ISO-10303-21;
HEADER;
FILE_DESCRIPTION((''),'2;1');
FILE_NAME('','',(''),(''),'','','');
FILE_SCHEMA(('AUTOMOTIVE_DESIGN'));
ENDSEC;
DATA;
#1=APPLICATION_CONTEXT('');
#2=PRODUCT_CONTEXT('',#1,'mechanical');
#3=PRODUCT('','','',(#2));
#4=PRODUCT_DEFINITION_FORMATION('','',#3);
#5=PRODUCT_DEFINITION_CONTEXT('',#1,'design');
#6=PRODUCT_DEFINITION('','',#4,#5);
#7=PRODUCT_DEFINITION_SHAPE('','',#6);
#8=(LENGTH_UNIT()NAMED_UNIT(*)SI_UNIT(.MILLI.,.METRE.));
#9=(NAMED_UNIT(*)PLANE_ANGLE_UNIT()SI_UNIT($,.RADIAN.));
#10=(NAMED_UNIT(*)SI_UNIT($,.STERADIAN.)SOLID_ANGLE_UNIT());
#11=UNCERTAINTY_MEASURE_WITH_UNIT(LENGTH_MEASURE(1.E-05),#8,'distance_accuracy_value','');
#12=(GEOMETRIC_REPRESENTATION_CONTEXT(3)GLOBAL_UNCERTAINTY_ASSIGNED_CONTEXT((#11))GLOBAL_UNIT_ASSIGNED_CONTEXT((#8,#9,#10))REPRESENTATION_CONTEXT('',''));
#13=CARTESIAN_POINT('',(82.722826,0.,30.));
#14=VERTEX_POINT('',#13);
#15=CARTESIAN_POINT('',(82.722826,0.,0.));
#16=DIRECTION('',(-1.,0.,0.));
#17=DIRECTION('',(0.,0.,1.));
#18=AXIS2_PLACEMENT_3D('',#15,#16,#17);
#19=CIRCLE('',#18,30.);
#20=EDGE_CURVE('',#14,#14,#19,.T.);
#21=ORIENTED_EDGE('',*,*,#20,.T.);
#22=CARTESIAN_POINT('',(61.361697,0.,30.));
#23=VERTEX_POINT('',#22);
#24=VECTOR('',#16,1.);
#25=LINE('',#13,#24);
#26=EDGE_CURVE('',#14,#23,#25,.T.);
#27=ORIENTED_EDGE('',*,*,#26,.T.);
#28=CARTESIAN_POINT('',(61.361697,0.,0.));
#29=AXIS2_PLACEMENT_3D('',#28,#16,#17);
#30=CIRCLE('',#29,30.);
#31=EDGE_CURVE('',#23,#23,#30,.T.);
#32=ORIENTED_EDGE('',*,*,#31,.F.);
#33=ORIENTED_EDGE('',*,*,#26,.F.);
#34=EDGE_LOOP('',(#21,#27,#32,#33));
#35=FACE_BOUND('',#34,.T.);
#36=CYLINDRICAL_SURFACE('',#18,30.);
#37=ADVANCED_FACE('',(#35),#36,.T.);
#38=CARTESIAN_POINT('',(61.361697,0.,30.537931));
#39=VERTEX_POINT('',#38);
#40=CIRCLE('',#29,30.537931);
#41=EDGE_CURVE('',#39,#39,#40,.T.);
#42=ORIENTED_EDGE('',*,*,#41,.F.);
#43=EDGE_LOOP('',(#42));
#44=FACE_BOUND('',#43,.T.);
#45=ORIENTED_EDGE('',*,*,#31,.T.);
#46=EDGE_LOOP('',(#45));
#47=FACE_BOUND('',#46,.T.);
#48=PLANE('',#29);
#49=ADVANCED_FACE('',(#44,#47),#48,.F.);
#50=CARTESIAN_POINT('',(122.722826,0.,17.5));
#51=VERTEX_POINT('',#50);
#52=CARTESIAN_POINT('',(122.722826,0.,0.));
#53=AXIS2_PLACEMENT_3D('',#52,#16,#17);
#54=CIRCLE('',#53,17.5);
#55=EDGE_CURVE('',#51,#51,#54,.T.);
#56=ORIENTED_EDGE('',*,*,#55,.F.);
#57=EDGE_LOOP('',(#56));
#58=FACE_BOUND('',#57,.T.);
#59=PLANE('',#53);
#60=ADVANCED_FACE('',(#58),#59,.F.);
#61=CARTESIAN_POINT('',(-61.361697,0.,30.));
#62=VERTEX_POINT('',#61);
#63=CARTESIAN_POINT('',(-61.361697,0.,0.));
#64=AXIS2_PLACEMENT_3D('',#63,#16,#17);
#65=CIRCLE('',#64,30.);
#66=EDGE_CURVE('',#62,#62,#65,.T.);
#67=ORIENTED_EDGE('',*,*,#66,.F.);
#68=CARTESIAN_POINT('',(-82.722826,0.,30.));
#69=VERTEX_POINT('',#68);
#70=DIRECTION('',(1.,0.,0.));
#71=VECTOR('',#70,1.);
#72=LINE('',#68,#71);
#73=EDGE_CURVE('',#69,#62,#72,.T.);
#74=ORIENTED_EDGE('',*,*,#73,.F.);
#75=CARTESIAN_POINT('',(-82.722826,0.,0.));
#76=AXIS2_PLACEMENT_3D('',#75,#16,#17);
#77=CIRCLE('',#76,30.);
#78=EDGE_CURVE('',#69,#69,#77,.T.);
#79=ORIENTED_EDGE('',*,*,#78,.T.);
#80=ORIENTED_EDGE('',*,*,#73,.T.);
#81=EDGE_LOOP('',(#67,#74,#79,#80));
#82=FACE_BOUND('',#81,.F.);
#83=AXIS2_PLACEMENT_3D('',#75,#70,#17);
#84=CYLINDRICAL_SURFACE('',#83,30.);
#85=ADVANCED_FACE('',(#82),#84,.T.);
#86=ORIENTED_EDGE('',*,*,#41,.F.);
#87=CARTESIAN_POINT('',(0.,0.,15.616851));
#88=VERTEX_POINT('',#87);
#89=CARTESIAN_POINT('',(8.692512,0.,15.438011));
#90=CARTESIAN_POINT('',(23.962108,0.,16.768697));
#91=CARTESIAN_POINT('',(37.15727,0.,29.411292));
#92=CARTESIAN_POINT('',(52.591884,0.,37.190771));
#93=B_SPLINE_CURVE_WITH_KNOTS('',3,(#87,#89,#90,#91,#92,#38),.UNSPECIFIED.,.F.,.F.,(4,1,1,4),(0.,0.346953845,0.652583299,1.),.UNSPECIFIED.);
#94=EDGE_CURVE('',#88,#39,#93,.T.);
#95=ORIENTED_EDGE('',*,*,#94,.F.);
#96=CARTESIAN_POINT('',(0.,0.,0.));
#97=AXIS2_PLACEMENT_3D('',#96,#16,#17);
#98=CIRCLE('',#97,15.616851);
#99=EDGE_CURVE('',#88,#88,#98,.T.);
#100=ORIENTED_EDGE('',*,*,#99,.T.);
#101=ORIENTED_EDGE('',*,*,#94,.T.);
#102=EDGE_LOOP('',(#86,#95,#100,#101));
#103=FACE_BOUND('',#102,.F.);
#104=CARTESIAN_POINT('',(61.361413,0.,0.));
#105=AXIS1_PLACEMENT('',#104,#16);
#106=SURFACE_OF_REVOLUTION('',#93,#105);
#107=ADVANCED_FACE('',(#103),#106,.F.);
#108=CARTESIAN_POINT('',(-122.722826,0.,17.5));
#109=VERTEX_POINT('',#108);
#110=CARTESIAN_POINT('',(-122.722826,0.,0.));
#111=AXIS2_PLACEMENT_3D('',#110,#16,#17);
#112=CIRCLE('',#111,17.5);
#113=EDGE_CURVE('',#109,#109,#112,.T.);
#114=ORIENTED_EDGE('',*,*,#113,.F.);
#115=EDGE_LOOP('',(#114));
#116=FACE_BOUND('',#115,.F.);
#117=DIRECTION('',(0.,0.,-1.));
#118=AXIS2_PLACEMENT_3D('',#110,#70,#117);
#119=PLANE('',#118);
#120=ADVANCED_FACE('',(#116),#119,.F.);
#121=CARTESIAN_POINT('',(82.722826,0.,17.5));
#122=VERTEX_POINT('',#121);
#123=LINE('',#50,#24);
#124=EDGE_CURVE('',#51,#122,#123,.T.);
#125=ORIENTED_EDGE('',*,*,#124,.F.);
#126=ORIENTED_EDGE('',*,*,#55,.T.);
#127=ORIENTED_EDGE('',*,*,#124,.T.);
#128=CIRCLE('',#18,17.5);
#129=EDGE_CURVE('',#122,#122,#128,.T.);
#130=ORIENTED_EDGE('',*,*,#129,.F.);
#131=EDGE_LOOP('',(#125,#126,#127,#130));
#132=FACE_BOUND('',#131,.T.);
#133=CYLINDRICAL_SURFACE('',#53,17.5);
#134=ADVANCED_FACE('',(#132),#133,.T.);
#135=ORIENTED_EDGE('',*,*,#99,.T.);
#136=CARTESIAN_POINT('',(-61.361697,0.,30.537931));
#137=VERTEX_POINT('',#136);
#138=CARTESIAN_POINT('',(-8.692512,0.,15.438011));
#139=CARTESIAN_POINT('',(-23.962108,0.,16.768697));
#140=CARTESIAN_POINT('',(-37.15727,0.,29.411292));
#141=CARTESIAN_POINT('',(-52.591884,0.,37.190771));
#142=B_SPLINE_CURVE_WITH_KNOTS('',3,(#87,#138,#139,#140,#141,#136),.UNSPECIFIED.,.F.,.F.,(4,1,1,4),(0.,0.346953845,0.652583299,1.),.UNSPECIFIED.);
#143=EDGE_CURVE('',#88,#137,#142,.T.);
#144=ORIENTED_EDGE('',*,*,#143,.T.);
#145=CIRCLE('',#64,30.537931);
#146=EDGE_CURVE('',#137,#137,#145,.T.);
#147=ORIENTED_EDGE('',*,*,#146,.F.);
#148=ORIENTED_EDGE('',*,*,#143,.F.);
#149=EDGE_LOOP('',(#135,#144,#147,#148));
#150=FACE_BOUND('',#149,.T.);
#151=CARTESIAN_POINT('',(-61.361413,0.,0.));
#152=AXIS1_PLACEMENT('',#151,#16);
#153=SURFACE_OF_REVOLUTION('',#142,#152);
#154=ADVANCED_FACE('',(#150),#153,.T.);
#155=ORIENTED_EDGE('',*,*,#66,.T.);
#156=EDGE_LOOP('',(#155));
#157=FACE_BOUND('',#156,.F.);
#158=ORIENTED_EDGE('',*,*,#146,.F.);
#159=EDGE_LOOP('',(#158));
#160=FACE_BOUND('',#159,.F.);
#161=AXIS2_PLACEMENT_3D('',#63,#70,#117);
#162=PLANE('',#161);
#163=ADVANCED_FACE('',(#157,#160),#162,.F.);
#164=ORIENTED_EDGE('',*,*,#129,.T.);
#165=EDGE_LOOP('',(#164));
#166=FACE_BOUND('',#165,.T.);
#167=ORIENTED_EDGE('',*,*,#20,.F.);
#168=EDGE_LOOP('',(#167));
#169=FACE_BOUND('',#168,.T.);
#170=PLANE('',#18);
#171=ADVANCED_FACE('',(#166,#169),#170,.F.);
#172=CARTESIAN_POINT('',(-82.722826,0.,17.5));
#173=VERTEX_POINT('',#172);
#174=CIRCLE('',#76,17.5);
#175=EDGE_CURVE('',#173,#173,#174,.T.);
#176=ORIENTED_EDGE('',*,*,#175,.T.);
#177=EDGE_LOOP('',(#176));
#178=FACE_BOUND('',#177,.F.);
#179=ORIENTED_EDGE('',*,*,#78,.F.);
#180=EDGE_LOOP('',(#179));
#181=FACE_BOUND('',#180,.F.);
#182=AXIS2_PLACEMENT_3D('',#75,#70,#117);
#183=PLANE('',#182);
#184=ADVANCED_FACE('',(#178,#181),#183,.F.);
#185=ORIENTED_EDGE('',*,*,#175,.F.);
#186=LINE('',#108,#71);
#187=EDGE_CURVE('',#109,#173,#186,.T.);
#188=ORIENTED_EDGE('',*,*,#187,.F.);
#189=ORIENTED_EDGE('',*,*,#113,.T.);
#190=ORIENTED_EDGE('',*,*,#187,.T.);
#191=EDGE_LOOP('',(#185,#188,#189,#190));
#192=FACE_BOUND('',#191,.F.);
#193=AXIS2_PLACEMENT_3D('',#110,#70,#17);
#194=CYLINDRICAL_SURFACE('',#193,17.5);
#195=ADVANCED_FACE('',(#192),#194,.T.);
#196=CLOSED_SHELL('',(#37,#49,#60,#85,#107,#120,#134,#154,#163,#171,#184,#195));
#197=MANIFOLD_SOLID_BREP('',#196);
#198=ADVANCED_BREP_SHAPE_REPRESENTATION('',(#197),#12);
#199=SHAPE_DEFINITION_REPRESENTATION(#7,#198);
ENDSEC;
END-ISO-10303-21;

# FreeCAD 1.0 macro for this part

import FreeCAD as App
import Part
import Sketcher
from FreeCAD import Vector
Q = App.Units.Quantity

doc = App.newDocument("Part")
params = doc.addObject("Spreadsheet::Sheet", "Params")
for row, (alias, value) in enumerate([
    ("sketch1_width", "40 mm"),
    ("sketch1_height", "17.5 mm"),
    ("sketch1_height2", "12.5 mm"),
    ("revolution_angle", "360 deg"),
], start=1):
    params.set(f"A{row}", alias)
    params.set(f"B{row}", "=" + value)
    params.setAlias(f"B{row}", alias)

body = doc.addObject("PartDesign::Body", "Body")

# Sketch on XZ plane
sketch1 = body.newObject("Sketcher::SketchObject", "Sketch")
sketch1.AttachmentSupport = (doc.getObject("XZ_Plane"), [""])
sketch1.MapMode = "FlatFace"
sketch1.addGeometry([
    Part.LineSegment(Vector(0, 15.616851, 0), Vector(0, 0, 0)),  # 0
    Part.LineSegment(Vector(0, 0, 0), Vector(122.722826, 0, 0)),  # 1
    Part.LineSegment(Vector(122.722826, 0, 0), Vector(122.722826, 17.5, 0)),  # 2
    Part.LineSegment(Vector(122.722826, 17.5, 0), Vector(82.722826, 17.5, 0)),  # 3
    Part.LineSegment(Vector(82.722826, 17.5, 0), Vector(82.722826, 30, 0)),  # 4
    Part.LineSegment(Vector(82.722826, 30, 0), Vector(61.361697, 30, 0)),  # 5
    Part.LineSegment(Vector(61.361697, 30, 0), Vector(61.361697, 30.537931, 0)),  # 6
    Part.BSplineCurve([Vector(0, 15.616851, 0), Vector(8.692512, 15.438011, 0), Vector(23.962108, 16.768697, 0), Vector(37.15727, 29.411292, 0), Vector(52.591884, 37.190771, 0), Vector(61.361697, 30.537931, 0)], [4, 1, 1, 4], [0, 0.346953845, 0.652583299, 1], False, 3, [1, 1, 1, 1, 1, 1], False),  # 7
], False)
sketch1.addConstraint([
    Sketcher.Constraint("Block", 7),
    Sketcher.Constraint("Coincident", 0, 2, 1, 1),
    Sketcher.Constraint("Coincident", 1, 2, 2, 1),
    Sketcher.Constraint("Coincident", 2, 2, 3, 1),
    Sketcher.Constraint("Coincident", 3, 2, 4, 1),
    Sketcher.Constraint("Coincident", 4, 2, 5, 1),
    Sketcher.Constraint("Coincident", 5, 2, 6, 1),
    Sketcher.Constraint("Coincident", 6, 2, 7, 2),
    Sketcher.Constraint("Coincident", 7, 1, 0, 1),
    Sketcher.Constraint("Vertical", 0),
    Sketcher.Constraint("Horizontal", 1),
    Sketcher.Constraint("Vertical", 2),
    Sketcher.Constraint("Horizontal", 3),
    Sketcher.Constraint("Vertical", 4),
    Sketcher.Constraint("Horizontal", 5),
    Sketcher.Constraint("Vertical", 6),
    Sketcher.Constraint("PointOnObject", 1, 2, -1),
    Sketcher.Constraint("DistanceX", 3, 2, 3, 1, Q("40 mm")),
    Sketcher.Constraint("DistanceY", 2, 1, 2, 2, Q("17.5 mm")),
    Sketcher.Constraint("DistanceY", 4, 1, 4, 2, Q("12.5 mm")),
    Sketcher.Constraint("DistanceX", 5, 2, 5, 1, Q("21.361129 mm")),
])
sketch1.setExpression("Constraints[17]", "Params.sketch1_width")
sketch1.setExpression("Constraints[18]", "Params.sketch1_height")
sketch1.setExpression("Constraints[19]", "Params.sketch1_height2")
revolution = body.newObject("PartDesign::Revolution", "Revolution")
revolution.Profile = sketch1
revolution.ReferenceAxis = (sketch1, ["H_Axis"])
revolution.setExpression("Angle", "Params.revolution_angle")
body2 = doc.addObject("PartDesign::Body", "Body001")
doc.recompute()

body2.BaseFeature = body
doc.recompute()

mirroring = doc.addObject("Part::Mirroring", "Mirroring")
mirroring.Source = body
mirroring.Base = Vector(0, 0, 0)
mirroring.Normal = Vector(-1, 0, 0)
body3 = doc.addObject("PartDesign::Body", "Body002")
body3.BaseFeature = mirroring
boolean = body2.newObject("PartDesign::Boolean", "Boolean")
boolean.Type = "Fuse"
boolean.addObjects([body3])
doc.recompute()
mirroring.Visibility = False

doc.recompute()
